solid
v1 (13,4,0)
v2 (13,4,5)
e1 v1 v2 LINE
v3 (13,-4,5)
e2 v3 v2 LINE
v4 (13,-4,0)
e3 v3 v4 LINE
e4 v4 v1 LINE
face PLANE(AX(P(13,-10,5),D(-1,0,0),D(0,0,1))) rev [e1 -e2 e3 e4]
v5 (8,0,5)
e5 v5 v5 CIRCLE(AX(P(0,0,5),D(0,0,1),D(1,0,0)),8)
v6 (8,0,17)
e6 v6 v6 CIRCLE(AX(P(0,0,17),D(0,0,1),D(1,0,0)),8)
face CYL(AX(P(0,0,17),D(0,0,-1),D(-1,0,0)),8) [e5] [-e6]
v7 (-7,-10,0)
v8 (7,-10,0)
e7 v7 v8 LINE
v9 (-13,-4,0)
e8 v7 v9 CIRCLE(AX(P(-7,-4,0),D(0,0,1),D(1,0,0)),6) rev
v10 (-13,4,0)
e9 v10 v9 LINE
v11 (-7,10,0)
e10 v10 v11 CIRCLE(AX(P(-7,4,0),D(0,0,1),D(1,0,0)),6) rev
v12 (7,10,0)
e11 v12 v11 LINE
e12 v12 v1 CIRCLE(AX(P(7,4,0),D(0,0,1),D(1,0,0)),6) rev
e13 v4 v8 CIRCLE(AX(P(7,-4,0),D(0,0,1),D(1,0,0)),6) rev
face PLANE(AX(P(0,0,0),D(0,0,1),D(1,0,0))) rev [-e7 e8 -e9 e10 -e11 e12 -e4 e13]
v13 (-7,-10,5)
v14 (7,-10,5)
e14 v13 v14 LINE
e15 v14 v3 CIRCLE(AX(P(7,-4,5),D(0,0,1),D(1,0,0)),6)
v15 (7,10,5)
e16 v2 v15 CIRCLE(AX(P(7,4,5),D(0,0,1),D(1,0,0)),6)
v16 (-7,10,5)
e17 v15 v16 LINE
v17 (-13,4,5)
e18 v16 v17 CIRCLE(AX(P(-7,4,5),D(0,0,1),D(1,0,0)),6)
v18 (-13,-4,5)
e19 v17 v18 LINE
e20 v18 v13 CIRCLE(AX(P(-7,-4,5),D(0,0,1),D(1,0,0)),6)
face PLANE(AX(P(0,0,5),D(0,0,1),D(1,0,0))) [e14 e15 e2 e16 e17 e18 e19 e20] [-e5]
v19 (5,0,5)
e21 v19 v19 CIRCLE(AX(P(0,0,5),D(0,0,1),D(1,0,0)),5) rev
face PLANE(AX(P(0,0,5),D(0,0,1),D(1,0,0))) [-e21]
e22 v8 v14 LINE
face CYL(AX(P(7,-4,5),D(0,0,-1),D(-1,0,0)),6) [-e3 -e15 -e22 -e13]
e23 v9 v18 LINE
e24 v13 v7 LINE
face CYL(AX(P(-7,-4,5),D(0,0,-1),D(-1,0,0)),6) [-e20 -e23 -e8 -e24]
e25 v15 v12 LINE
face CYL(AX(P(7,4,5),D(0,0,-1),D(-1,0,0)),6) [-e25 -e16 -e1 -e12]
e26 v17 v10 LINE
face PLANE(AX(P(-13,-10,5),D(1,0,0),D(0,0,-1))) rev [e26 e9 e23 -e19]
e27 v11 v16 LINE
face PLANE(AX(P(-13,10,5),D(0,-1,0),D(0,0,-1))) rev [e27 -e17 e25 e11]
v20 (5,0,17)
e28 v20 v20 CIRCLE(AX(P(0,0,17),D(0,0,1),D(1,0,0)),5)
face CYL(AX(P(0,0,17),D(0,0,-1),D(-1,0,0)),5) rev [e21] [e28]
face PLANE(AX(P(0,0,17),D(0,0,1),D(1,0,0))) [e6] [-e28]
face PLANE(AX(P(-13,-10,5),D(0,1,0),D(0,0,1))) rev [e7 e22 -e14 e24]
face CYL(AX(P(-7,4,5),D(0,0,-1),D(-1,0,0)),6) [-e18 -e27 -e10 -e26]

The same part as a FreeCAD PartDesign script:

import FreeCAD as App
import Part
import Sketcher

V = App.Vector
Q = App.Units.Quantity


def edges_at(feature, points):
    """Names of the edges that pass closest to the given points."""
    edges = feature.Shape.Edges
    near = lambda p: min(range(len(edges)), key=lambda i: edges[i].distToShape(Part.Vertex(*p))[0])
    return sorted({f"Edge{near(p) + 1}" for p in points})


def add_polygon(sketch, points):
    """Adds a closed chain of lines whose ends are joined by coincident constraints."""
    first, n = sketch.GeometryCount, len(points)
    for a, b in zip(points, points[1:] + points[:1]):
        sketch.addGeometry(Part.LineSegment(App.Vector(*a, 0), App.Vector(*b, 0)), False)
    for i in range(n):
        sketch.addConstraint(Sketcher.Constraint("Coincident", first + i, 2, first + (i + 1) % n, 1))

doc = App.newDocument("Part")
body = doc.addObject("PartDesign::Body", "Body")

sketch1 = body.newObject("Sketcher::SketchObject", "Sketch")
sketch1.AttachmentSupport = (doc.getObject("XY_Plane"), [""])
sketch1.MapMode = "FlatFace"
add_polygon(sketch1, [(-13, 10), (-13, -10), (13, -10), (13, 10)])
sketch1.addConstraint(Sketcher.Constraint("Vertical", 0))
sketch1.addConstraint(Sketcher.Constraint("Horizontal", 1))
sketch1.addConstraint(Sketcher.Constraint("Vertical", 2))
sketch1.addConstraint(Sketcher.Constraint("Horizontal", 3))
sketch1.addConstraint(Sketcher.Constraint("Symmetric", 0, 2, 2, 2, -1, 1))
sketch1.addConstraint(Sketcher.Constraint("DistanceX", 1, 1, 1, 2, Q("26 mm")))
sketch1.addConstraint(Sketcher.Constraint("DistanceY", 0, 2, 0, 1, Q("20 mm")))
pad1 = body.newObject("PartDesign::Pad", "Pad")
pad1.Profile = sketch1
pad1.Length = 5

sketch2 = body.newObject("Sketcher::SketchObject", "Sketch001")
sketch2.AttachmentSupport = (doc.getObject("XY_Plane"), [""])
sketch2.MapMode = "FlatFace"
sketch2.AttachmentOffset = App.Placement(V(0, 0, 5), App.Rotation())
sketch2.addGeometry(Part.Circle(V(0, 0, 0), V(0, 0, 1), 8), False)
sketch2.addGeometry(Part.Circle(V(0, 0, 0), V(0, 0, 1), 5), False)
sketch2.addConstraint(Sketcher.Constraint("Coincident", 0, 3, -1, 1))
sketch2.addConstraint(Sketcher.Constraint("Coincident", 1, 3, -1, 1))
sketch2.addConstraint(Sketcher.Constraint("Diameter", 0, Q("16 mm")))
sketch2.addConstraint(Sketcher.Constraint("Diameter", 1, Q("10 mm")))
pad2 = body.newObject("PartDesign::Pad", "Pad001")
pad2.Profile = sketch2
pad2.Length = 12
doc.recompute()

fillet = body.newObject("PartDesign::Fillet", "Fillet")
fillet.Base = (pad2, edges_at(pad2, [
    (13, 10, 2.5),
    (13, -10, 2.5),
    (-13, -10, 2.5),
    (-13, 10, 2.5),
]))
fillet.Radius = 6

doc.recompute()
